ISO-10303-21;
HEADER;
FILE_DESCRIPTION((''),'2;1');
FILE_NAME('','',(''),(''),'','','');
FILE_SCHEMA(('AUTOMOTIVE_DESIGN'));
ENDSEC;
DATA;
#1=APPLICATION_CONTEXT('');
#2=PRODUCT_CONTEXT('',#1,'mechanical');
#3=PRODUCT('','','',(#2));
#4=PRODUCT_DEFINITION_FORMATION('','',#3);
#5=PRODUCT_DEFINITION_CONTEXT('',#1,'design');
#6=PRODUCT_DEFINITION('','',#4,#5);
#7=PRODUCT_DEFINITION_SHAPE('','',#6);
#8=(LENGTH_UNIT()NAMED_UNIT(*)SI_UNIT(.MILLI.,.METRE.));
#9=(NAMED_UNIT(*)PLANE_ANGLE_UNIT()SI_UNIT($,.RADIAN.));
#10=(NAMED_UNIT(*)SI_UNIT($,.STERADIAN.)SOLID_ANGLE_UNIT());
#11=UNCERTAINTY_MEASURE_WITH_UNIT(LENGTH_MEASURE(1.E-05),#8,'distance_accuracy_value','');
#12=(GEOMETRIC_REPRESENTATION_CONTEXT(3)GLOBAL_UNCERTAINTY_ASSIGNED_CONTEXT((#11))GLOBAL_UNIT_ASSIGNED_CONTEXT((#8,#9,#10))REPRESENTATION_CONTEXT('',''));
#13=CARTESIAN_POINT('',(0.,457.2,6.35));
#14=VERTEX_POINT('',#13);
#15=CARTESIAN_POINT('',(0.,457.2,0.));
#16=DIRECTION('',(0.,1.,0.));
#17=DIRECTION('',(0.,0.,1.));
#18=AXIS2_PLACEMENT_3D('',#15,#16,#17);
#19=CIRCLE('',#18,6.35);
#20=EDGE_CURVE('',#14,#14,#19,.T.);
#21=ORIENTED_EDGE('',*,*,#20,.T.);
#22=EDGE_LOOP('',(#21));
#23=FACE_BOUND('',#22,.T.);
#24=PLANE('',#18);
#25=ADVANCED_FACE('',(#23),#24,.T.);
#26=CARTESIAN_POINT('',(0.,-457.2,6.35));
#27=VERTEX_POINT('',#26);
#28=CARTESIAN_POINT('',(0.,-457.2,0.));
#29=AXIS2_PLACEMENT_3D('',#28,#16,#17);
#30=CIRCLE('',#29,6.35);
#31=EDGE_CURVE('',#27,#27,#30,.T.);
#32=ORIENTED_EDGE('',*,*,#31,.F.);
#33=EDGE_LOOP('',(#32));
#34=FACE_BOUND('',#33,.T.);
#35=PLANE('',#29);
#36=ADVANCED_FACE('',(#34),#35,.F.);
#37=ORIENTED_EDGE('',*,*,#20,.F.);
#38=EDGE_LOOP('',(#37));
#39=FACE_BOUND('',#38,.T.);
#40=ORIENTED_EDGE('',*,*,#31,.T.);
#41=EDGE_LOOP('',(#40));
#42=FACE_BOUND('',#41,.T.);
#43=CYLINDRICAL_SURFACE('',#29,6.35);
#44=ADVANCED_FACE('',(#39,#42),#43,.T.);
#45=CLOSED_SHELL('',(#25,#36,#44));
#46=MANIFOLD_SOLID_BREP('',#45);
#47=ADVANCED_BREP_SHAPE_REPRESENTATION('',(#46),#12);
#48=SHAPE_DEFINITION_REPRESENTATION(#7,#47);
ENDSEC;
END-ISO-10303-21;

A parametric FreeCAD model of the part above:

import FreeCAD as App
import Part
import Sketcher
from FreeCAD import Vector
Q = App.Units.Quantity

doc = App.newDocument("Part")
body = doc.addObject("PartDesign::Body", "Body")

sketch1 = body.newObject("Sketcher::SketchObject", "Sketch")
sketch1.AttachmentSupport = (doc.getObject("XZ_Plane"), [""])
sketch1.MapMode = "FlatFace"
sketch1.addGeometry(Part.Circle(Vector(0, 0, 0), Vector(0, 0, 1), 6), False)
sketch1.addConstraint(Sketcher.Constraint("Coincident", 0, 3, -1, 1))
sketch1.addConstraint(Sketcher.Constraint("Diameter", 0, Q("0.5 in")))
pad1 = body.newObject("PartDesign::Pad", "Pad")
pad1.Profile = sketch1
pad1.Type = "TwoLengths"
pad1.Length = Q("18 in")
pad1.Length2 = Q("18 in")
pad1.Reversed = True

doc.recompute()
